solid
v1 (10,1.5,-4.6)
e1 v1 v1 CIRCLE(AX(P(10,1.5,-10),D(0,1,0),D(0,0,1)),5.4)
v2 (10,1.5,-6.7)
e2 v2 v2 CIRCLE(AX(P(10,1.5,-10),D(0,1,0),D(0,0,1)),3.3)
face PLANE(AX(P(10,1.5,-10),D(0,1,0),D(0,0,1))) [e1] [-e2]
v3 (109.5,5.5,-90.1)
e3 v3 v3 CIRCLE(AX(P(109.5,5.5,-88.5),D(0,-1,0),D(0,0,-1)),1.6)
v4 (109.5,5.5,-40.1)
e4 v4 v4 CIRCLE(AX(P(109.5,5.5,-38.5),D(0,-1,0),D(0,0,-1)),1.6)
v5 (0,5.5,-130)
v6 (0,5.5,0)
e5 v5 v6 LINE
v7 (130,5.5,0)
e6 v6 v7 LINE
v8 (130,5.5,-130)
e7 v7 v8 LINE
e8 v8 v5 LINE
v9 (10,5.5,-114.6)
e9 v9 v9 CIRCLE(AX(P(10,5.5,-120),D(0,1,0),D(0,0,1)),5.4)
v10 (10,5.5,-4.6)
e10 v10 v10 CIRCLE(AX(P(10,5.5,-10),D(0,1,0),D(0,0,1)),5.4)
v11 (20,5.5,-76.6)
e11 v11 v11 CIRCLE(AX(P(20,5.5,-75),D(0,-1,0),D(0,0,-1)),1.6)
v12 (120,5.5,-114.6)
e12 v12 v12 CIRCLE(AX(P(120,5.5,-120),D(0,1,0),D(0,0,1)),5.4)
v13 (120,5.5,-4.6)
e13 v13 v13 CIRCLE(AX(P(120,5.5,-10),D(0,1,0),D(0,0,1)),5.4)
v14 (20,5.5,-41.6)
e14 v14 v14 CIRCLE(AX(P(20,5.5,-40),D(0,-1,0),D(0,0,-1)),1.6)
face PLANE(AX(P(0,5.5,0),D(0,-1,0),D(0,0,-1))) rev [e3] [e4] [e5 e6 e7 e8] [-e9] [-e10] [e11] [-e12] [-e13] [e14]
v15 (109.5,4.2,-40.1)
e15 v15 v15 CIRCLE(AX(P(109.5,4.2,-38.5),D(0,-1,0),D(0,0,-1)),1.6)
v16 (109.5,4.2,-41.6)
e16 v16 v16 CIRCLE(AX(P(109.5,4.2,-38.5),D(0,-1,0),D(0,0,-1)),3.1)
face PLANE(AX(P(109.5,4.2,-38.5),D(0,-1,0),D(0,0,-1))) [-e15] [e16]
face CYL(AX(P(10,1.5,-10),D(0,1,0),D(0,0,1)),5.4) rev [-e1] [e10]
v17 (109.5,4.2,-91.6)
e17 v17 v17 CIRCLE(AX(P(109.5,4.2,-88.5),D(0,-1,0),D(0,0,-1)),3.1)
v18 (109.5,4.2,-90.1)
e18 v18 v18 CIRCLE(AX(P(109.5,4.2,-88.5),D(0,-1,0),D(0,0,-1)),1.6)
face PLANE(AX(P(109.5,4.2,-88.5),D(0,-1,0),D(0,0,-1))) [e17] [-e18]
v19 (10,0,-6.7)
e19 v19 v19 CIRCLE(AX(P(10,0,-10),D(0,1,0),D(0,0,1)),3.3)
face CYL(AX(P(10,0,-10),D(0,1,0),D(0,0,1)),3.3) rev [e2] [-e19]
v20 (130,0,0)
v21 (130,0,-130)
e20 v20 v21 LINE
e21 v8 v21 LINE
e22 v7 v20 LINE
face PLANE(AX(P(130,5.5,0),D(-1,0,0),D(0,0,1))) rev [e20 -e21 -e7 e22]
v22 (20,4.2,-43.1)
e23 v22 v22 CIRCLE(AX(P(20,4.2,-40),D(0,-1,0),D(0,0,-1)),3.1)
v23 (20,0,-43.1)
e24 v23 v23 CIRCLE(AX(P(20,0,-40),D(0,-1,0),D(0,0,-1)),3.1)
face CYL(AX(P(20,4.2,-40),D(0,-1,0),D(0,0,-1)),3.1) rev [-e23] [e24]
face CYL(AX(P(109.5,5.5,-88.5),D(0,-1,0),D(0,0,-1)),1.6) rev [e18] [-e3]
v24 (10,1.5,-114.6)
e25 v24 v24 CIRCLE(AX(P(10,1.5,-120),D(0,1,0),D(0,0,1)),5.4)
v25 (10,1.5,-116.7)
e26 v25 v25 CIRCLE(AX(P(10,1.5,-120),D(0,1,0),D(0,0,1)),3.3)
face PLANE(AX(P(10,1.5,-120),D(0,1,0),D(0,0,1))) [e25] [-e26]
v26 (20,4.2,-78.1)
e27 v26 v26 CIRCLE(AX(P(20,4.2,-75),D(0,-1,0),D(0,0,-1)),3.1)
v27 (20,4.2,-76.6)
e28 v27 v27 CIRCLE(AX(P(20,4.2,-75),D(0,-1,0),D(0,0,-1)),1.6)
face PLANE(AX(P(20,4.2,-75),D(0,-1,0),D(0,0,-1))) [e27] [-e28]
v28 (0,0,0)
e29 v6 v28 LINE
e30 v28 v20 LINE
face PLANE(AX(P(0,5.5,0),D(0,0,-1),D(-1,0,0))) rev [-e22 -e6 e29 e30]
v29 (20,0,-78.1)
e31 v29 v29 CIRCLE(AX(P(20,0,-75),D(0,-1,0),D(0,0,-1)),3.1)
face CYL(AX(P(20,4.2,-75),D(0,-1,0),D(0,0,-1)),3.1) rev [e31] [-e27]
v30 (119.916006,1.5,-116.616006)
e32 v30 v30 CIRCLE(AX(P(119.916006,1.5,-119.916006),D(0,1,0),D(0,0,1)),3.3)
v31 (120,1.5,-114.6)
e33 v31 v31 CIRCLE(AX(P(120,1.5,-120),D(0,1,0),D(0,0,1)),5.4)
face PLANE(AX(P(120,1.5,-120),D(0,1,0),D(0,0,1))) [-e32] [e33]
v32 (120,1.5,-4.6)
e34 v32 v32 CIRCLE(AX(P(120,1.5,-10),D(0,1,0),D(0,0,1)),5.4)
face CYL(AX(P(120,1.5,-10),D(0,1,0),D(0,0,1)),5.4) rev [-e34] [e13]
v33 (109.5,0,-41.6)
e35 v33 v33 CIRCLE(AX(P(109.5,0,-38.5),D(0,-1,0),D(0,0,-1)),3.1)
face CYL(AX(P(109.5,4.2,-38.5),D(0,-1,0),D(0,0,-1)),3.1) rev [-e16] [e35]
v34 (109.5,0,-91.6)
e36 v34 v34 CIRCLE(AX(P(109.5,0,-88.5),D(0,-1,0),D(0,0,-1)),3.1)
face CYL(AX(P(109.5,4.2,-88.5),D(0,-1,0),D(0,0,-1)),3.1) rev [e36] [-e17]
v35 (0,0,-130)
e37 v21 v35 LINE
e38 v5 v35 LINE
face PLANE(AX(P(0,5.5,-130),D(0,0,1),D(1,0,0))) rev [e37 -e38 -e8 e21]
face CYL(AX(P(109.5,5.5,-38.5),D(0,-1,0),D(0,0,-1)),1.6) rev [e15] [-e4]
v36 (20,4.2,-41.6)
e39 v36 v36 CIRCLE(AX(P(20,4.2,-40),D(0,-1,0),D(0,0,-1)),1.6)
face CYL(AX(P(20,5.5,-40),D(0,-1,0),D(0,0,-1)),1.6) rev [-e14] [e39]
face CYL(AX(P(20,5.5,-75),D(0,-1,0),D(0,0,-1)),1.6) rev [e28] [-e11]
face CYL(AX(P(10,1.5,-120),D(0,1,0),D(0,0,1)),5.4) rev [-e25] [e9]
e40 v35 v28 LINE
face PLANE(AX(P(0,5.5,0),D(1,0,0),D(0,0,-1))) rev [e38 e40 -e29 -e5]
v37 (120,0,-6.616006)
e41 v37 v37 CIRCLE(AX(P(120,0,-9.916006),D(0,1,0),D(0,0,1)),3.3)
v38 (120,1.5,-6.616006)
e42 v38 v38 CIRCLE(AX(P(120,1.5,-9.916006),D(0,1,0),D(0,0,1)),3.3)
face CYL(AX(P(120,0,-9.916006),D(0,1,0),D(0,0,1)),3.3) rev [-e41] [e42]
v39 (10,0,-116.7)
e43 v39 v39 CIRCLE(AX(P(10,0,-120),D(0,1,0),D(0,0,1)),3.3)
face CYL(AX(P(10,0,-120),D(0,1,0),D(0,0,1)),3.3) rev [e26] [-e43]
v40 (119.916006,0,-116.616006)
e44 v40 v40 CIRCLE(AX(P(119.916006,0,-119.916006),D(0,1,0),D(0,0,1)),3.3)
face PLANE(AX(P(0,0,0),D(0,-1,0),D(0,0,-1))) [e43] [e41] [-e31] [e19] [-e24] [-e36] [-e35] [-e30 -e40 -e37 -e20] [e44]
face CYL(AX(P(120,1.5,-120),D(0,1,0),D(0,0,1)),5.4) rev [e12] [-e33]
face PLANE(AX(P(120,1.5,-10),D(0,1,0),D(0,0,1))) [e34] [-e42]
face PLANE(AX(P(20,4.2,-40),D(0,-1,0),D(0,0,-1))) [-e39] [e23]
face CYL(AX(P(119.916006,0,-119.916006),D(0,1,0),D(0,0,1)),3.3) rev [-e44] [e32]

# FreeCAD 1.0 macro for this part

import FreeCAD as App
import Part
import Sketcher
from FreeCAD import Vector
Q = App.Units.Quantity

doc = App.newDocument("Part")
body = doc.addObject("PartDesign::Body", "Body")

# Sketch on XZ plane
sketch1 = body.newObject("Sketcher::SketchObject", "Sketch")
sketch1.AttachmentSupport = (doc.getObject("XZ_Plane"), [""])
sketch1.MapMode = "FlatFace"
sketch1.addGeometry(Part.LineSegment(Vector(0, -130, 0), Vector(0, 0, 0)), False)
sketch1.addGeometry(Part.LineSegment(Vector(0, 0, 0), Vector(130, 0, 0)), False)
sketch1.addGeometry(Part.LineSegment(Vector(130, 0, 0), Vector(130, -130, 0)), False)
sketch1.addGeometry(Part.LineSegment(Vector(130, -130, 0), Vector(0, -130, 0)), False)
sketch1.addConstraint(Sketcher.Constraint("Coincident", 0, 2, 1, 1))
sketch1.addConstraint(Sketcher.Constraint("Coincident", 1, 2, 2, 1))
sketch1.addConstraint(Sketcher.Constraint("Coincident", 2, 2, 3, 1))
sketch1.addConstraint(Sketcher.Constraint("Coincident", 3, 2, 0, 1))
sketch1.addConstraint(Sketcher.Constraint("Vertical", 0))
sketch1.addConstraint(Sketcher.Constraint("Horizontal", 1))
sketch1.addConstraint(Sketcher.Constraint("Vertical", 2))
sketch1.addConstraint(Sketcher.Constraint("Horizontal", 3))
sketch1.addConstraint(Sketcher.Constraint("Coincident", 0, 2, -1, 1))
sketch1.addConstraint(Sketcher.Constraint("Equal", 3, 0))
sketch1.addConstraint(Sketcher.Constraint("DistanceX", 1, 1, 1, 2, Q("130 mm")))
pad1 = body.newObject("PartDesign::Pad", "Pad")
pad1.Profile = sketch1
pad1.Length = 5.5
pad1.Reversed = True

# Sketch on XZ plane
sketch2 = body.newObject("Sketcher::SketchObject", "Sketch001")
sketch2.AttachmentSupport = (doc.getObject("XZ_Plane"), [""])
sketch2.MapMode = "FlatFace"
sketch2.AttachmentOffset = App.Placement(Vector(0, 0, -5.5), App.Rotation())
sketch2.addGeometry(Part.Circle(Vector(10, -120, 0), Vector(0, 0, 1), 5), False)
sketch2.addGeometry(Part.Circle(Vector(120, -120, 0), Vector(0, 0, 1), 5), False)
sketch2.addGeometry(Part.Circle(Vector(10, -10, 0), Vector(0, 0, 1), 5), False)
sketch2.addGeometry(Part.Circle(Vector(120, -10, 0), Vector(0, 0, 1), 5), False)
sketch2.addConstraint(Sketcher.Constraint("Equal", 0, 1))
sketch2.addConstraint(Sketcher.Constraint("Equal", 1, 2))
sketch2.addConstraint(Sketcher.Constraint("Equal", 2, 3))
sketch2.addConstraint(Sketcher.Constraint("Horizontal", 0, 3, 1, 3))
sketch2.addConstraint(Sketcher.Constraint("Horizontal", 2, 3, 3, 3))
sketch2.addConstraint(Sketcher.Constraint("Vertical", 0, 3, 2, 3))
sketch2.addConstraint(Sketcher.Constraint("Vertical", 1, 3, 3, 3))
sketch2.addConstraint(Sketcher.Constraint("Diameter", 0, Q("10.8 mm")))
sketch2.addConstraint(Sketcher.Constraint("DistanceX", -1, 1, 0, 3, Q("10 mm")))
sketch2.addConstraint(Sketcher.Constraint("DistanceY", 0, 3, -1, 1, Q("120 mm")))
sketch2.addConstraint(Sketcher.Constraint("DistanceX", -1, 1, 1, 3, Q("120 mm")))
sketch2.addConstraint(Sketcher.Constraint("DistanceY", 2, 3, -1, 1, Q("10 mm")))
pocket1 = body.newObject("PartDesign::Pocket", "Pocket")
pocket1.Profile = sketch2
pocket1.Length = 4
pocket1.Reversed = True

# Sketch on XZ plane
sketch3 = body.newObject("Sketcher::SketchObject", "Sketch002")
sketch3.AttachmentSupport = (doc.getObject("XZ_Plane"), [""])
sketch3.MapMode = "FlatFace"
sketch3.AttachmentOffset = App.Placement(Vector(0, 0, -1.5), App.Rotation())
sketch3.addGeometry(Part.Circle(Vector(10, -120, 0), Vector(0, 0, 1), 3.3), False)
sketch3.addGeometry(Part.Circle(Vector(119.9, -119.9, 0), Vector(0, 0, 1), 3.3), False)
sketch3.addGeometry(Part.Circle(Vector(10, -10, 0), Vector(0, 0, 1), 3.3), False)
sketch3.addGeometry(Part.Circle(Vector(120, -9.9, 0), Vector(0, 0, 1), 3.3), False)
sketch3.addConstraint(Sketcher.Constraint("Equal", 0, 1))
sketch3.addConstraint(Sketcher.Constraint("Equal", 1, 2))
sketch3.addConstraint(Sketcher.Constraint("Equal", 2, 3))
sketch3.addConstraint(Sketcher.Constraint("Vertical", 0, 3, 2, 3))
sketch3.addConstraint(Sketcher.Constraint("Diameter", 0, Q("6.6 mm")))
sketch3.addConstraint(Sketcher.Constraint("DistanceX", -1, 1, 0, 3, Q("10 mm")))
sketch3.addConstraint(Sketcher.Constraint("DistanceY", 0, 3, -1, 1, Q("120 mm")))
sketch3.addConstraint(Sketcher.Constraint("DistanceY", 2, 3, -1, 1, Q("10 mm")))
sketch3.addConstraint(Sketcher.Constraint("DistanceX", -1, 1, 3, 3, Q("120 mm")))
sketch3.addConstraint(Sketcher.Constraint("DistanceY", 1, 3, 3, 3, Q("110 mm")))
sketch3.addConstraint(Sketcher.Constraint("DistanceX", -1, 1, 1, 3, Q("119.916006 mm")))
sketch3.addConstraint(Sketcher.Constraint("DistanceY", 1, 3, -1, 1, Q("119.916006 mm")))
pocket2 = body.newObject("PartDesign::Pocket", "Pocket001")
pocket2.Profile = sketch3
pocket2.Length = 1.5
pocket2.Reversed = True

# Sketch on XZ plane
sketch4 = body.newObject("Sketcher::SketchObject", "Sketch003")
sketch4.AttachmentSupport = (doc.getObject("XZ_Plane"), [""])
sketch4.MapMode = "FlatFace"
sketch4.addGeometry(Part.Circle(Vector(20, -40, 0), Vector(0, 0, 1), 3.1), False)
sketch4.addGeometry(Part.Circle(Vector(20, -75, 0), Vector(0, 0, 1), 3.1), False)
sketch4.addGeometry(Part.Circle(Vector(109.5, -38.5, 0), Vector(0, 0, 1), 3.1), False)
sketch4.addGeometry(Part.Circle(Vector(109.5, -88.5, 0), Vector(0, 0, 1), 3.1), False)
sketch4.addConstraint(Sketcher.Constraint("Equal", 0, 1))
sketch4.addConstraint(Sketcher.Constraint("Equal", 1, 2))
sketch4.addConstraint(Sketcher.Constraint("Equal", 2, 3))
sketch4.addConstraint(Sketcher.Constraint("Vertical", 0, 3, 1, 3))
sketch4.addConstraint(Sketcher.Constraint("Vertical", 2, 3, 3, 3))
sketch4.addConstraint(Sketcher.Constraint("Diameter", 0, Q("6.2 mm")))
sketch4.addConstraint(Sketcher.Constraint("DistanceX", -1, 1, 0, 3, Q("20 mm")))
sketch4.addConstraint(Sketcher.Constraint("DistanceY", 0, 3, -1, 1, Q("40 mm")))
sketch4.addConstraint(Sketcher.Constraint("DistanceY", 1, 3, -1, 1, Q("75 mm")))
sketch4.addConstraint(Sketcher.Constraint("DistanceY", 3, 3, 2, 3, Q("50 mm")))
sketch4.addConstraint(Sketcher.Constraint("DistanceX", -1, 1, 2, 3, Q("109.5 mm")))
sketch4.addConstraint(Sketcher.Constraint("DistanceY", 2, 3, -1, 1, Q("38.5 mm")))
pocket3 = body.newObject("PartDesign::Pocket", "Pocket002")
pocket3.Profile = sketch4
pocket3.Length = 4.2

# Sketch on XZ plane
sketch5 = body.newObject("Sketcher::SketchObject", "Sketch004")
sketch5.AttachmentSupport = (doc.getObject("XZ_Plane"), [""])
sketch5.MapMode = "FlatFace"
sketch5.AttachmentOffset = App.Placement(Vector(0, 0, -4.2), App.Rotation())
sketch5.addGeometry(Part.Circle(Vector(20, -40, 0), Vector(0, 0, 1), 1.6), False)
sketch5.addGeometry(Part.Circle(Vector(20, -75, 0), Vector(0, 0, 1), 1.6), False)
sketch5.addGeometry(Part.Circle(Vector(109.5, -38.5, 0), Vector(0, 0, 1), 1.6), False)
sketch5.addGeometry(Part.Circle(Vector(109.5, -88.5, 0), Vector(0, 0, 1), 1.6), False)
sketch5.addConstraint(Sketcher.Constraint("Equal", 0, 1))
sketch5.addConstraint(Sketcher.Constraint("Equal", 1, 2))
sketch5.addConstraint(Sketcher.Constraint("Equal", 2, 3))
sketch5.addConstraint(Sketcher.Constraint("Vertical", 0, 3, 1, 3))
sketch5.addConstraint(Sketcher.Constraint("Vertical", 2, 3, 3, 3))
sketch5.addConstraint(Sketcher.Constraint("Diameter", 0, Q("3.2 mm")))
sketch5.addConstraint(Sketcher.Constraint("DistanceX", -1, 1, 0, 3, Q("20 mm")))
sketch5.addConstraint(Sketcher.Constraint("DistanceY", 0, 3, -1, 1, Q("40 mm")))
sketch5.addConstraint(Sketcher.Constraint("DistanceY", 1, 3, -1, 1, Q("75 mm")))
sketch5.addConstraint(Sketcher.Constraint("DistanceY", 3, 3, 2, 3, Q("50 mm")))
sketch5.addConstraint(Sketcher.Constraint("DistanceX", -1, 1, 2, 3, Q("109.5 mm")))
sketch5.addConstraint(Sketcher.Constraint("DistanceY", 2, 3, -1, 1, Q("38.5 mm")))
pocket4 = body.newObject("PartDesign::Pocket", "Pocket003")
pocket4.Profile = sketch5
pocket4.Type = "ThroughAll"

doc.recompute()
